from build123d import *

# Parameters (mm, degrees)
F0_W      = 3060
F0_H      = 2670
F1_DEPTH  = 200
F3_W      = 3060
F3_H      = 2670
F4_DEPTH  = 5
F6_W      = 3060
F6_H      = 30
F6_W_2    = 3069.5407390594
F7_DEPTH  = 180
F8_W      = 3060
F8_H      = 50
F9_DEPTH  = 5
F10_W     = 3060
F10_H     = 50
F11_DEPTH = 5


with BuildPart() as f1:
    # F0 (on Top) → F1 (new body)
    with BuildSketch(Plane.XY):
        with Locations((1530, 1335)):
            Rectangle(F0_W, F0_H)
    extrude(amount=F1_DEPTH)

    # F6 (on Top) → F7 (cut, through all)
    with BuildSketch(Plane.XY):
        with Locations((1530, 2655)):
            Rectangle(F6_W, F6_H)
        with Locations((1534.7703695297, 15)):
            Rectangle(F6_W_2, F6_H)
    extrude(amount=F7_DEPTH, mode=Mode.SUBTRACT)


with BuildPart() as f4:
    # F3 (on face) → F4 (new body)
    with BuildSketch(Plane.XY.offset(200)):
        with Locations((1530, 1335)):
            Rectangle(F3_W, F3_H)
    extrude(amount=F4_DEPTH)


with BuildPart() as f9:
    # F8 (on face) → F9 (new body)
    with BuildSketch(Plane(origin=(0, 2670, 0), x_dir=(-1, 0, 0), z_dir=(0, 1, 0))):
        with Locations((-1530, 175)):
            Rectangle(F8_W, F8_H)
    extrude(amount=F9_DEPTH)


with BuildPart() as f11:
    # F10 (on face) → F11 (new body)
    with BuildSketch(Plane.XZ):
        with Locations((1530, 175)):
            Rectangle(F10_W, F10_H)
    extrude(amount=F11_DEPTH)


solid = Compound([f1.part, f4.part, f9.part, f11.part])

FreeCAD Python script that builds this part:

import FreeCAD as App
import Part
import Sketcher
from FreeCAD import Vector
Q = App.Units.Quantity

doc = App.newDocument("Part")
body = doc.addObject("PartDesign::Body", "Body")

# Sketch on XY plane
sketch1 = body.newObject("Sketcher::SketchObject", "Sketch")
sketch1.AttachmentSupport = (doc.getObject("XY_Plane"), [""])
sketch1.MapMode = "FlatFace"
sketch1.addGeometry([
    Part.LineSegment(Vector(0, 2670, 0), Vector(0, 0, 0)),
    Part.LineSegment(Vector(0, 0, 0), Vector(3060, 0, 0)),
    Part.LineSegment(Vector(3060, 0, 0), Vector(3060, 2670, 0)),
    Part.LineSegment(Vector(3060, 2670, 0), Vector(0, 2670, 0)),
], False)
sketch1.addConstraint([
    Sketcher.Constraint("Coincident", 0, 2, 1, 1),
    Sketcher.Constraint("Coincident", 1, 2, 2, 1),
    Sketcher.Constraint("Coincident", 2, 2, 3, 1),
    Sketcher.Constraint("Coincident", 3, 2, 0, 1),
    Sketcher.Constraint("Vertical", 0),
    Sketcher.Constraint("Horizontal", 1),
    Sketcher.Constraint("Vertical", 2),
    Sketcher.Constraint("Horizontal", 3),
    Sketcher.Constraint("Coincident", 0, 2, -1, 1),
    Sketcher.Constraint("DistanceX", 1, 1, 1, 2, Q("3060 mm")),
    Sketcher.Constraint("DistanceY", 0, 2, 0, 1, Q("2670 mm")),
])
pad1 = body.newObject("PartDesign::Pad", "Pad")
pad1.Profile = sketch1
pad1.Length = 200

# Sketch on XY plane
sketch2 = body.newObject("Sketcher::SketchObject", "Sketch001")
sketch2.AttachmentSupport = (doc.getObject("XY_Plane"), [""])
sketch2.MapMode = "FlatFace"
sketch2.addGeometry([
    Part.LineSegment(Vector(0, 2670, 0), Vector(0, 2640, 0)),  # 0
    Part.LineSegment(Vector(0, 2640, 0), Vector(3060, 2640, 0)),  # 1
    Part.LineSegment(Vector(3060, 2640, 0), Vector(3060, 2670, 0)),  # 2
    Part.LineSegment(Vector(3060, 2670, 0), Vector(0, 2670, 0)),  # 3
    Part.LineSegment(Vector(0, 30, 0), Vector(0, 0, 0)),  # 4
    Part.LineSegment(Vector(0, 0, 0), Vector(3070, 0, 0)),  # 5
    Part.LineSegment(Vector(3070, 0, 0), Vector(3070, 30, 0)),  # 6
    Part.LineSegment(Vector(3070, 30, 0), Vector(0, 30, 0)),  # 7
], False)
sketch2.addConstraint([
    Sketcher.Constraint("Coincident", 0, 2, 1, 1),
    Sketcher.Constraint("Coincident", 1, 2, 2, 1),
    Sketcher.Constraint("Coincident", 2, 2, 3, 1),
    Sketcher.Constraint("Coincident", 3, 2, 0, 1),
    Sketcher.Constraint("Coincident", 4, 2, 5, 1),
    Sketcher.Constraint("Coincident", 5, 2, 6, 1),
    Sketcher.Constraint("Coincident", 6, 2, 7, 1),
    Sketcher.Constraint("Coincident", 7, 2, 4, 1),
    Sketcher.Constraint("Vertical", 0),
    Sketcher.Constraint("Horizontal", 1),
    Sketcher.Constraint("Vertical", 2),
    Sketcher.Constraint("Horizontal", 3),
    Sketcher.Constraint("Vertical", 4),
    Sketcher.Constraint("Horizontal", 5),
    Sketcher.Constraint("Vertical", 6),
    Sketcher.Constraint("Horizontal", 7),
    Sketcher.Constraint("Coincident", 4, 2, -1, 1),
    Sketcher.Constraint("PointOnObject", 0, 2, -2),
    Sketcher.Constraint("Equal", 2, 4),
    Sketcher.Constraint("DistanceX", 1, 1, 1, 2, Q("3060 mm")),
    Sketcher.Constraint("DistanceY", 0, 2, 0, 1, Q("30 mm")),
    Sketcher.Constraint("DistanceY", -1, 1, 0, 2, Q("2640 mm")),
    Sketcher.Constraint("DistanceX", 5, 1, 5, 2, Q("3069.540739 mm")),
])
pocket1 = body.newObject("PartDesign::Pocket", "Pocket")
pocket1.Profile = sketch2
pocket1.Length = 180
pocket1.Reversed = True
body2 = doc.addObject("PartDesign::Body", "Body001")

# Sketch on XY plane
sketch3 = body2.newObject("Sketcher::SketchObject", "Sketch002")
sketch3.AttachmentSupport = (doc.getObject("XY_Plane001"), [""])
sketch3.MapMode = "FlatFace"
sketch3.AttachmentOffset = App.Placement(Vector(0, 0, 200), App.Rotation())
sketch3.addGeometry([
    Part.LineSegment(Vector(0, 2670, 0), Vector(0, 0, 0)),
    Part.LineSegment(Vector(0, 0, 0), Vector(3060, 0, 0)),
    Part.LineSegment(Vector(3060, 0, 0), Vector(3060, 2670, 0)),
    Part.LineSegment(Vector(3060, 2670, 0), Vector(0, 2670, 0)),
], False)
sketch3.addConstraint([
    Sketcher.Constraint("Coincident", 0, 2, 1, 1),
    Sketcher.Constraint("Coincident", 1, 2, 2, 1),
    Sketcher.Constraint("Coincident", 2, 2, 3, 1),
    Sketcher.Constraint("Coincident", 3, 2, 0, 1),
    Sketcher.Constraint("Vertical", 0),
    Sketcher.Constraint("Horizontal", 1),
    Sketcher.Constraint("Vertical", 2),
    Sketcher.Constraint("Horizontal", 3),
    Sketcher.Constraint("Coincident", 0, 2, -1, 1),
    Sketcher.Constraint("DistanceX", 1, 1, 1, 2, Q("3060 mm")),
    Sketcher.Constraint("DistanceY", 0, 2, 0, 1, Q("2670 mm")),
])
pad2 = body2.newObject("PartDesign::Pad", "Pad001")
pad2.Profile = sketch3
pad2.Length = 5
body3 = doc.addObject("PartDesign::Body", "Body002")

# Sketch on XZ plane
sketch4 = body3.newObject("Sketcher::SketchObject", "Sketch003")
sketch4.AttachmentSupport = (doc.getObject("XZ_Plane002"), [""])
sketch4.MapMode = "FlatFace"
sketch4.AttachmentOffset = App.Placement(Vector(0, 0, -2670), App.Rotation())
sketch4.addGeometry([
    Part.LineSegment(Vector(3060, 200, 0), Vector(3060, 150, 0)),
    Part.LineSegment(Vector(3060, 150, 0), Vector(0, 150, 0)),
    Part.LineSegment(Vector(0, 150, 0), Vector(0, 200, 0)),
    Part.LineSegment(Vector(0, 200, 0), Vector(3060, 200, 0)),
], False)
sketch4.addConstraint([
    Sketcher.Constraint("Coincident", 0, 2, 1, 1),
    Sketcher.Constraint("Coincident", 1, 2, 2, 1),
    Sketcher.Constraint("Coincident", 2, 2, 3, 1),
    Sketcher.Constraint("Coincident", 3, 2, 0, 1),
    Sketcher.Constraint("Vertical", 0),
    Sketcher.Constraint("Horizontal", 1),
    Sketcher.Constraint("Vertical", 2),
    Sketcher.Constraint("Horizontal", 3),
    Sketcher.Constraint("PointOnObject", 1, 2, -2),
    Sketcher.Constraint("DistanceX", 1, 2, 1, 1, Q("3060 mm")),
    Sketcher.Constraint("DistanceY", 0, 2, 0, 1, Q("50 mm")),
    Sketcher.Constraint("DistanceY", -1, 1, 0, 2, Q("150 mm")),
])
pad3 = body3.newObject("PartDesign::Pad", "Pad002")
pad3.Profile = sketch4
pad3.Length = 5
pad3.Reversed = True
body4 = doc.addObject("PartDesign::Body", "Body003")

# Sketch on XZ plane
sketch5 = body4.newObject("Sketcher::SketchObject", "Sketch004")
sketch5.AttachmentSupport = (doc.getObject("XZ_Plane003"), [""])
sketch5.MapMode = "FlatFace"
sketch5.addGeometry([
    Part.LineSegment(Vector(0, 200, 0), Vector(0, 150, 0)),
    Part.LineSegment(Vector(0, 150, 0), Vector(3060, 150, 0)),
    Part.LineSegment(Vector(3060, 150, 0), Vector(3060, 200, 0)),
    Part.LineSegment(Vector(3060, 200, 0), Vector(0, 200, 0)),
], False)
sketch5.addConstraint([
    Sketcher.Constraint("Coincident", 0, 2, 1, 1),
    Sketcher.Constraint("Coincident", 1, 2, 2, 1),
    Sketcher.Constraint("Coincident", 2, 2, 3, 1),
    Sketcher.Constraint("Coincident", 3, 2, 0, 1),
    Sketcher.Constraint("Vertical", 0),
    Sketcher.Constraint("Horizontal", 1),
    Sketcher.Constraint("Vertical", 2),
    Sketcher.Constraint("Horizontal", 3),
    Sketcher.Constraint("PointOnObject", 0, 2, -2),
    Sketcher.Constraint("DistanceX", 1, 1, 1, 2, Q("3060 mm")),
    Sketcher.Constraint("DistanceY", 0, 2, 0, 1, Q("50 mm")),
    Sketcher.Constraint("DistanceY", -1, 1, 0, 2, Q("150 mm")),
])
pad4 = body4.newObject("PartDesign::Pad", "Pad003")
pad4.Profile = sketch5
pad4.Length = 5

doc.recompute()
